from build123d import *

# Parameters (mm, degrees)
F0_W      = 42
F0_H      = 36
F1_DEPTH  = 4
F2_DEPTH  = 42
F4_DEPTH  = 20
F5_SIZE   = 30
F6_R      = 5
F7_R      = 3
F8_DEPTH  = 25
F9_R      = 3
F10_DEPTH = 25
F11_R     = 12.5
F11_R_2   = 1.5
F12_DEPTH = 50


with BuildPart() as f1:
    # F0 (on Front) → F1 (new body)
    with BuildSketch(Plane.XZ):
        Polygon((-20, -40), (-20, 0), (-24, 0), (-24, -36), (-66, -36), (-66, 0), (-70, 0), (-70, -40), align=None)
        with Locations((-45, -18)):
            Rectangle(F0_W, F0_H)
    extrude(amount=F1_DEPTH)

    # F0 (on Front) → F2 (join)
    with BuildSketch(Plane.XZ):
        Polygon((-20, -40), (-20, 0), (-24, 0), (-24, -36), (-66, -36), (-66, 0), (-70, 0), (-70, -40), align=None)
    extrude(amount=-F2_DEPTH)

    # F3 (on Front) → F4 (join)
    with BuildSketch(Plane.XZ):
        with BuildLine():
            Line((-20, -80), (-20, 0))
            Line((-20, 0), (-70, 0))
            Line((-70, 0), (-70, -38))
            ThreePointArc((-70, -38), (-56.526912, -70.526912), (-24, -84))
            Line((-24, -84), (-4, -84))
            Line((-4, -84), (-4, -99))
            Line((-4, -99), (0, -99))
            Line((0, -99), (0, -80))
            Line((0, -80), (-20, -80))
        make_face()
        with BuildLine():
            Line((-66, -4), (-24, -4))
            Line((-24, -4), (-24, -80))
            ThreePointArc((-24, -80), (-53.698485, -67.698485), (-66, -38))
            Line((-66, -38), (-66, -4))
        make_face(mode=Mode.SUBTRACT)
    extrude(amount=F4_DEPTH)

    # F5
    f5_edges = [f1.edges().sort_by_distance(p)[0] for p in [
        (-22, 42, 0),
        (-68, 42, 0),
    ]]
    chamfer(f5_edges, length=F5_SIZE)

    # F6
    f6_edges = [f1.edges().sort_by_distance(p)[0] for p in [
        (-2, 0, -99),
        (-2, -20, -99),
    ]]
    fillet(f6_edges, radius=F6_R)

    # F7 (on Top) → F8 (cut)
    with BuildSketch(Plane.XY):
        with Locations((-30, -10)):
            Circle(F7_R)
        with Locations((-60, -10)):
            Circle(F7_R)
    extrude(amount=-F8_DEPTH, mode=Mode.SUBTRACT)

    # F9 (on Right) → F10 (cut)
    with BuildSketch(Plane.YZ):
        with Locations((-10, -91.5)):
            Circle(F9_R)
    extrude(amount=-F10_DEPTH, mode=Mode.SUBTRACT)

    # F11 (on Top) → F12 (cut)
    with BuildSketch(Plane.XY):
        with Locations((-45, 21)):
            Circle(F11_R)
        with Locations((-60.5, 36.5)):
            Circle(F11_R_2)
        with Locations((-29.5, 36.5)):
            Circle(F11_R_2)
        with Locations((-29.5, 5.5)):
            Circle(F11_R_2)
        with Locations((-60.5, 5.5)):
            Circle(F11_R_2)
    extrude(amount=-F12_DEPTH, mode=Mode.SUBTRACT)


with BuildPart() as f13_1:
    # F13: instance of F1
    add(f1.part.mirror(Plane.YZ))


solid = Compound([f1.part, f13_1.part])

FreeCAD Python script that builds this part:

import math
import FreeCAD as App
import Part
import Sketcher
Q = App.Units.Quantity


def edges_at(feature, points):
    """Names of the edges that pass closest to the given points."""
    edges = feature.Shape.Edges
    near = lambda p: min(range(len(edges)), key=lambda i: edges[i].distToShape(Part.Vertex(*p))[0])
    return sorted({f"Edge{near(p) + 1}" for p in points})


def add_polygon(sketch, points):
    """Adds a closed chain of lines whose ends are joined by coincident constraints."""
    first, n = sketch.GeometryCount, len(points)
    for a, b in zip(points, points[1:] + points[:1]):
        sketch.addGeometry(Part.LineSegment(App.Vector(*a, 0), App.Vector(*b, 0)), False)
    for i in range(n):
        sketch.addConstraint(Sketcher.Constraint("Coincident", first + i, 2, first + (i + 1) % n, 1))

doc = App.newDocument("Part")
params = doc.addObject("Spreadsheet::Sheet", "Params")
for row, (alias, value) in enumerate([
    ("sketch1_width", "50 mm"),
    ("sketch1_height", "40 mm"),
    ("pad1_length", "4 mm"),
    ("sketch2_width", "4 mm"),
    ("sketch2_width2", "42 mm"),
    ("sketch2_height", "40 mm"),
    ("sketch2_height2", "36 mm"),
    ("pad2_length", "42 mm"),
    ("sketch3_radius", "46 mm"),
    ("sketch3_radius2", "41.999999 mm"),
    ("sketch3_width", "50 mm"),
    ("sketch3_width2", "20 mm"),
    ("sketch3_height", "80 mm"),
    ("pad3_length", "20 mm"),
    ("chamfer_size", "30 mm"),
    ("fillet_radius", "5 mm"),
    ("sketch4_diameter", "6 mm"),
    ("pocket1_length", "25 mm"),
    ("sketch5_diameter", "6 mm"),
    ("pocket2_length", "25 mm"),
    ("sketch6_diameter", "25 mm"),
    ("sketch6_diameter2", "3 mm"),
    ("pocket3_length", "50 mm"),
], start=1):
    params.set(f"A{row}", alias)
    params.set(f"B{row}", "=" + value)
    params.setAlias(f"B{row}", alias)

body = doc.addObject("PartDesign::Body", "Body")

sketch1 = body.newObject("Sketcher::SketchObject", "Sketch")
sketch1.AttachmentSupport = (doc.getObject("XZ_Plane"), [""])
sketch1.MapMode = "FlatFace"
add_polygon(sketch1, [(-20, -40), (-20, 0), (-70, 0), (-70, -40)])
sketch1.addConstraint(Sketcher.Constraint("Vertical", 0))
sketch1.addConstraint(Sketcher.Constraint("Horizontal", 1))
sketch1.addConstraint(Sketcher.Constraint("Vertical", 2))
sketch1.addConstraint(Sketcher.Constraint("Horizontal", 3))
sketch1.addConstraint(Sketcher.Constraint("PointOnObject", 0, 2, -1))
sketch1.addConstraint(Sketcher.Constraint("DistanceX", 1, 2, 1, 1, Q("50 mm")))
sketch1.addConstraint(Sketcher.Constraint("DistanceY", 0, 1, 0, 2, Q("40 mm")))
sketch1.addConstraint(Sketcher.Constraint("DistanceX", 0, 2, -1, 1, Q("20 mm")))
sketch1.setExpression("Constraints[9]", "Params.sketch1_width")
sketch1.setExpression("Constraints[10]", "Params.sketch1_height")
pad1 = body.newObject("PartDesign::Pad", "Pad")
pad1.Profile = sketch1
pad1.setExpression("Length", "Params.pad1_length")

sketch2 = body.newObject("Sketcher::SketchObject", "Sketch001")
sketch2.AttachmentSupport = (doc.getObject("XZ_Plane"), [""])
sketch2.MapMode = "FlatFace"
add_polygon(sketch2, [(-20, -40), (-20, 0), (-24, 0), (-24, -36), (-66, -36), (-66, 0), (-70, 0), (-70, -40)])
sketch2.addConstraint(Sketcher.Constraint("Vertical", 0))
sketch2.addConstraint(Sketcher.Constraint("Horizontal", 1))
sketch2.addConstraint(Sketcher.Constraint("Vertical", 2))
sketch2.addConstraint(Sketcher.Constraint("Horizontal", 3))
sketch2.addConstraint(Sketcher.Constraint("Vertical", 4))
sketch2.addConstraint(Sketcher.Constraint("Horizontal", 5))
sketch2.addConstraint(Sketcher.Constraint("Vertical", 6))
sketch2.addConstraint(Sketcher.Constraint("Horizontal", 7))
sketch2.addConstraint(Sketcher.Constraint("PointOnObject", 0, 2, -1))
sketch2.addConstraint(Sketcher.Constraint("PointOnObject", 4, 2, -1))
sketch2.addConstraint(Sketcher.Constraint("Equal", 1, 5))
sketch2.addConstraint(Sketcher.Constraint("DistanceX", 1, 2, 1, 1, Q("4 mm")))
sketch2.addConstraint(Sketcher.Constraint("DistanceX", 3, 2, 3, 1, Q("42 mm")))
sketch2.addConstraint(Sketcher.Constraint("DistanceY", 0, 1, 0, 2, Q("40 mm")))
sketch2.addConstraint(Sketcher.Constraint("DistanceY", 2, 2, 2, 1, Q("36 mm")))
sketch2.addConstraint(Sketcher.Constraint("DistanceX", 0, 2, -1, 1, Q("20 mm")))
sketch2.setExpression("Constraints[19]", "Params.sketch2_width")
sketch2.setExpression("Constraints[20]", "Params.sketch2_width2")
sketch2.setExpression("Constraints[21]", "Params.sketch2_height")
sketch2.setExpression("Constraints[22]", "Params.sketch2_height2")
pad2 = body.newObject("PartDesign::Pad", "Pad001")
pad2.Profile = sketch2
pad2.setExpression("Length", "Params.pad2_length")
pad2.Reversed = True

sketch3 = body.newObject("Sketcher::SketchObject", "Sketch002")
sketch3.AttachmentSupport = (doc.getObject("XZ_Plane"), [""])
sketch3.MapMode = "FlatFace"
sketch3.addGeometry(Part.LineSegment(App.Vector(-20, -80, 0), App.Vector(-20, 0, 0)), False)
sketch3.addGeometry(Part.LineSegment(App.Vector(-20, 0, 0), App.Vector(-70, 0, 0)), False)
sketch3.addGeometry(Part.LineSegment(App.Vector(-70, 0, 0), App.Vector(-70, -38, 0)), False)
sketch3.addGeometry(Part.ArcOfCircle(Part.Circle(App.Vector(-24, -38, 0), App.Vector(0, 0, 1), 46), math.radians(180), math.radians(270)), False)
sketch3.addGeometry(Part.LineSegment(App.Vector(-24, -84, 0), App.Vector(-4, -84, 0)), False)
sketch3.addGeometry(Part.LineSegment(App.Vector(-4, -84, 0), App.Vector(-4, -99, 0)), False)
sketch3.addGeometry(Part.LineSegment(App.Vector(-4, -99, 0), App.Vector(0, -99, 0)), False)
sketch3.addGeometry(Part.LineSegment(App.Vector(0, -99, 0), App.Vector(0, -80, 0)), False)
sketch3.addGeometry(Part.LineSegment(App.Vector(0, -80, 0), App.Vector(-20, -80, 0)), False)
sketch3.addGeometry(Part.LineSegment(App.Vector(-66, -38, 0), App.Vector(-66, -4, 0)), False)
sketch3.addGeometry(Part.LineSegment(App.Vector(-66, -4, 0), App.Vector(-24, -4, 0)), False)
sketch3.addGeometry(Part.LineSegment(App.Vector(-24, -4, 0), App.Vector(-24, -80, 0)), False)
sketch3.addGeometry(Part.ArcOfCircle(Part.Circle(App.Vector(-24, -38, 0), App.Vector(0, 0, 1), 42), math.radians(180), math.radians(270)), False)
sketch3.addConstraint(Sketcher.Constraint("Coincident", 0, 2, 1, 1))
sketch3.addConstraint(Sketcher.Constraint("Coincident", 1, 2, 2, 1))
sketch3.addConstraint(Sketcher.Constraint("Tangent", 2, 2, 3, 1))
sketch3.addConstraint(Sketcher.Constraint("Tangent", 3, 2, 4, 1))
sketch3.addConstraint(Sketcher.Constraint("Coincident", 4, 2, 5, 1))
sketch3.addConstraint(Sketcher.Constraint("Coincident", 5, 2, 6, 1))
sketch3.addConstraint(Sketcher.Constraint("Coincident", 6, 2, 7, 1))
sketch3.addConstraint(Sketcher.Constraint("Coincident", 7, 2, 8, 1))
sketch3.addConstraint(Sketcher.Constraint("Coincident", 8, 2, 0, 1))
sketch3.addConstraint(Sketcher.Constraint("Coincident", 9, 2, 10, 1))
sketch3.addConstraint(Sketcher.Constraint("Coincident", 10, 2, 11, 1))
sketch3.addConstraint(Sketcher.Constraint("Coincident", 11, 2, 12, 2))
sketch3.addConstraint(Sketcher.Constraint("Tangent", 12, 1, 9, 1))
sketch3.addConstraint(Sketcher.Constraint("Vertical", 0))
sketch3.addConstraint(Sketcher.Constraint("Horizontal", 1))
sketch3.addConstraint(Sketcher.Constraint("Vertical", 2))
sketch3.addConstraint(Sketcher.Constraint("Horizontal", 4))
sketch3.addConstraint(Sketcher.Constraint("Vertical", 5))
sketch3.addConstraint(Sketcher.Constraint("Horizontal", 6))
sketch3.addConstraint(Sketcher.Constraint("Vertical", 7))
sketch3.addConstraint(Sketcher.Constraint("Horizontal", 8))
sketch3.addConstraint(Sketcher.Constraint("Vertical", 9))
sketch3.addConstraint(Sketcher.Constraint("Horizontal", 10))
sketch3.addConstraint(Sketcher.Constraint("Vertical", 11))
sketch3.addConstraint(Sketcher.Constraint("Coincident", 12, 3, 3, 3))
sketch3.addConstraint(Sketcher.Constraint("PointOnObject", 0, 2, -1))
sketch3.addConstraint(Sketcher.Constraint("PointOnObject", 6, 2, -2))
sketch3.addConstraint(Sketcher.Constraint("Horizontal", 8, 2, 11, 2))
sketch3.addConstraint(Sketcher.Constraint("Vertical", 3, 2, 10, 2))
sketch3.addConstraint(Sketcher.Constraint("Equal", 4, 8))
sketch3.addConstraint(Sketcher.Constraint("Radius", 3, Q("46 mm")))
sketch3.addConstraint(Sketcher.Constraint("Radius", 12, Q("41.999999 mm")))
sketch3.addConstraint(Sketcher.Constraint("DistanceX", 1, 2, 1, 1, Q("50 mm")))
sketch3.addConstraint(Sketcher.Constraint("DistanceX", 4, 1, 4, 2, Q("20 mm")))
sketch3.addConstraint(Sketcher.Constraint("DistanceY", 0, 1, 0, 2, Q("80 mm")))
sketch3.addConstraint(Sketcher.Constraint("DistanceY", 5, 2, 5, 1, Q("15 mm")))
sketch3.addConstraint(Sketcher.Constraint("DistanceY", 9, 1, 9, 2, Q("34 mm")))
sketch3.setExpression("Constraints[30]", "Params.sketch3_radius")
sketch3.setExpression("Constraints[31]", "Params.sketch3_radius2")
sketch3.setExpression("Constraints[32]", "Params.sketch3_width")
sketch3.setExpression("Constraints[33]", "Params.sketch3_width2")
sketch3.setExpression("Constraints[34]", "Params.sketch3_height")
pad3 = body.newObject("PartDesign::Pad", "Pad002")
pad3.Profile = sketch3
pad3.setExpression("Length", "Params.pad3_length")
doc.recompute()

chamfer = body.newObject("PartDesign::Chamfer", "Chamfer")
chamfer.Base = (pad3, edges_at(pad3, [(-22, 42, 0), (-68, 42, 0)]))
chamfer.setExpression("Size", "Params.chamfer_size")
doc.recompute()

fillet = body.newObject("PartDesign::Fillet", "Fillet")
fillet.Base = (chamfer, edges_at(chamfer, [(-2, 0, -99), (-2, -20, -99)]))
fillet.setExpression("Radius", "Params.fillet_radius")

sketch4 = body.newObject("Sketcher::SketchObject", "Sketch003")
sketch4.AttachmentSupport = (doc.getObject("XY_Plane"), [""])
sketch4.MapMode = "FlatFace"
sketch4.addGeometry(Part.Circle(App.Vector(-30, -10, 0), App.Vector(0, 0, 1), 3), False)
sketch4.addGeometry(Part.Circle(App.Vector(-60, -10, 0), App.Vector(0, 0, 1), 3), False)
sketch4.addConstraint(Sketcher.Constraint("Equal", 0, 1))
sketch4.addConstraint(Sketcher.Constraint("Horizontal", 0, 3, 1, 3))
sketch4.addConstraint(Sketcher.Constraint("Diameter", 0, Q("6 mm")))
sketch4.addConstraint(Sketcher.Constraint("DistanceX", 0, 3, -1, 1, Q("30 mm")))
sketch4.addConstraint(Sketcher.Constraint("DistanceY", 0, 3, -1, 1, Q("10 mm")))
sketch4.addConstraint(Sketcher.Constraint("DistanceX", 1, 3, -1, 1, Q("60 mm")))
sketch4.setExpression("Constraints[2]", "Params.sketch4_diameter")
pocket1 = body.newObject("PartDesign::Pocket", "Pocket")
pocket1.Profile = sketch4
pocket1.setExpression("Length", "Params.pocket1_length")

sketch5 = body.newObject("Sketcher::SketchObject", "Sketch004")
sketch5.AttachmentSupport = (doc.getObject("YZ_Plane"), [""])
sketch5.MapMode = "FlatFace"
sketch5.addGeometry(Part.Circle(App.Vector(-10, -91.5, 0), App.Vector(0, 0, 1), 3), False)
sketch5.addConstraint(Sketcher.Constraint("Diameter", 0, Q("6 mm")))
sketch5.addConstraint(Sketcher.Constraint("DistanceX", 0, 3, -1, 1, Q("10 mm")))
sketch5.addConstraint(Sketcher.Constraint("DistanceY", 0, 3, -1, 1, Q("91.5 mm")))
sketch5.setExpression("Constraints[0]", "Params.sketch5_diameter")
pocket2 = body.newObject("PartDesign::Pocket", "Pocket001")
pocket2.Profile = sketch5
pocket2.setExpression("Length", "Params.pocket2_length")

sketch6 = body.newObject("Sketcher::SketchObject", "Sketch005")
sketch6.AttachmentSupport = (doc.getObject("XY_Plane"), [""])
sketch6.MapMode = "FlatFace"
sketch6.addGeometry(Part.Circle(App.Vector(-45, 21, 0), App.Vector(0, 0, 1), 12.5), False)
sketch6.addGeometry(Part.Circle(App.Vector(-60.5, 36.5, 0), App.Vector(0, 0, 1), 1.5), False)
sketch6.addGeometry(Part.Circle(App.Vector(-29.5, 36.5, 0), App.Vector(0, 0, 1), 1.5), False)
sketch6.addGeometry(Part.Circle(App.Vector(-29.5, 5.5, 0), App.Vector(0, 0, 1), 1.5), False)
sketch6.addGeometry(Part.Circle(App.Vector(-60.5, 5.5, 0), App.Vector(0, 0, 1), 1.5), False)
sketch6.addConstraint(Sketcher.Constraint("Equal", 1, 2))
sketch6.addConstraint(Sketcher.Constraint("Equal", 2, 3))
sketch6.addConstraint(Sketcher.Constraint("Equal", 3, 4))
sketch6.addConstraint(Sketcher.Constraint("Horizontal", 1, 3, 2, 3))
sketch6.addConstraint(Sketcher.Constraint("Horizontal", 3, 3, 4, 3))
sketch6.addConstraint(Sketcher.Constraint("Vertical", 2, 3, 3, 3))
sketch6.addConstraint(Sketcher.Constraint("Vertical", 1, 3, 4, 3))
sketch6.addConstraint(Sketcher.Constraint("Diameter", 0, Q("25 mm")))
sketch6.addConstraint(Sketcher.Constraint("Diameter", 1, Q("3 mm")))
sketch6.addConstraint(Sketcher.Constraint("DistanceX", 0, 3, -1, 1, Q("45 mm")))
sketch6.addConstraint(Sketcher.Constraint("DistanceY", -1, 1, 0, 3, Q("21 mm")))
sketch6.addConstraint(Sketcher.Constraint("DistanceX", 1, 3, 2, 3, Q("31 mm")))
sketch6.addConstraint(Sketcher.Constraint("DistanceY", 3, 3, 2, 3, Q("31 mm")))
sketch6.addConstraint(Sketcher.Constraint("DistanceX", 1, 3, -1, 1, Q("60.5 mm")))
sketch6.addConstraint(Sketcher.Constraint("DistanceY", -1, 1, 1, 3, Q("36.5 mm")))
sketch6.setExpression("Constraints[7]", "Params.sketch6_diameter")
sketch6.setExpression("Constraints[8]", "Params.sketch6_diameter2")
pocket3 = body.newObject("PartDesign::Pocket", "Pocket002")
pocket3.Profile = sketch6
pocket3.setExpression("Length", "Params.pocket3_length")
body2 = doc.addObject("PartDesign::Body", "Body001")
doc.recompute()

mirroring = doc.addObject("Part::Mirroring", "Mirroring")
mirroring.Source = body
mirroring.Base = App.Vector(0, 0, 0)
mirroring.Normal = App.Vector(1, 0, 0)
body2.BaseFeature = mirroring
doc.recompute()
mirroring.Visibility = False

doc.recompute()
